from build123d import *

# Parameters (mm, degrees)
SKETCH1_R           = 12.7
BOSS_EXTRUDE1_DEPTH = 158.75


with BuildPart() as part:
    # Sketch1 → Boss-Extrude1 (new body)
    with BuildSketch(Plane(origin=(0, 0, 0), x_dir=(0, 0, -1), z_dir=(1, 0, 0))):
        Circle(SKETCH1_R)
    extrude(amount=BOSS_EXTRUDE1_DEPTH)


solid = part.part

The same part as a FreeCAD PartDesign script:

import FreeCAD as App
import Part
import Sketcher

V = App.Vector
Q = App.Units.Quantity

doc = App.newDocument("Part")
body = doc.addObject("PartDesign::Body", "Body")

# Sketch on YZ plane
sketch1 = body.newObject("Sketcher::SketchObject", "Sketch")
sketch1.AttachmentSupport = (doc.getObject("YZ_Plane"), [""])
sketch1.MapMode = "FlatFace"
sketch1.addGeometry(Part.Circle(V(0, 0, 0), V(0, 0, 1), 13), False)
sketch1.addConstraint(Sketcher.Constraint("Coincident", 0, 3, -1, 1))
sketch1.addConstraint(Sketcher.Constraint("Diameter", 0, Q("1 in")))
pad1 = body.newObject("PartDesign::Pad", "Pad")
pad1.Profile = sketch1
pad1.Length = Q("6.25 in")

doc.recompute()
